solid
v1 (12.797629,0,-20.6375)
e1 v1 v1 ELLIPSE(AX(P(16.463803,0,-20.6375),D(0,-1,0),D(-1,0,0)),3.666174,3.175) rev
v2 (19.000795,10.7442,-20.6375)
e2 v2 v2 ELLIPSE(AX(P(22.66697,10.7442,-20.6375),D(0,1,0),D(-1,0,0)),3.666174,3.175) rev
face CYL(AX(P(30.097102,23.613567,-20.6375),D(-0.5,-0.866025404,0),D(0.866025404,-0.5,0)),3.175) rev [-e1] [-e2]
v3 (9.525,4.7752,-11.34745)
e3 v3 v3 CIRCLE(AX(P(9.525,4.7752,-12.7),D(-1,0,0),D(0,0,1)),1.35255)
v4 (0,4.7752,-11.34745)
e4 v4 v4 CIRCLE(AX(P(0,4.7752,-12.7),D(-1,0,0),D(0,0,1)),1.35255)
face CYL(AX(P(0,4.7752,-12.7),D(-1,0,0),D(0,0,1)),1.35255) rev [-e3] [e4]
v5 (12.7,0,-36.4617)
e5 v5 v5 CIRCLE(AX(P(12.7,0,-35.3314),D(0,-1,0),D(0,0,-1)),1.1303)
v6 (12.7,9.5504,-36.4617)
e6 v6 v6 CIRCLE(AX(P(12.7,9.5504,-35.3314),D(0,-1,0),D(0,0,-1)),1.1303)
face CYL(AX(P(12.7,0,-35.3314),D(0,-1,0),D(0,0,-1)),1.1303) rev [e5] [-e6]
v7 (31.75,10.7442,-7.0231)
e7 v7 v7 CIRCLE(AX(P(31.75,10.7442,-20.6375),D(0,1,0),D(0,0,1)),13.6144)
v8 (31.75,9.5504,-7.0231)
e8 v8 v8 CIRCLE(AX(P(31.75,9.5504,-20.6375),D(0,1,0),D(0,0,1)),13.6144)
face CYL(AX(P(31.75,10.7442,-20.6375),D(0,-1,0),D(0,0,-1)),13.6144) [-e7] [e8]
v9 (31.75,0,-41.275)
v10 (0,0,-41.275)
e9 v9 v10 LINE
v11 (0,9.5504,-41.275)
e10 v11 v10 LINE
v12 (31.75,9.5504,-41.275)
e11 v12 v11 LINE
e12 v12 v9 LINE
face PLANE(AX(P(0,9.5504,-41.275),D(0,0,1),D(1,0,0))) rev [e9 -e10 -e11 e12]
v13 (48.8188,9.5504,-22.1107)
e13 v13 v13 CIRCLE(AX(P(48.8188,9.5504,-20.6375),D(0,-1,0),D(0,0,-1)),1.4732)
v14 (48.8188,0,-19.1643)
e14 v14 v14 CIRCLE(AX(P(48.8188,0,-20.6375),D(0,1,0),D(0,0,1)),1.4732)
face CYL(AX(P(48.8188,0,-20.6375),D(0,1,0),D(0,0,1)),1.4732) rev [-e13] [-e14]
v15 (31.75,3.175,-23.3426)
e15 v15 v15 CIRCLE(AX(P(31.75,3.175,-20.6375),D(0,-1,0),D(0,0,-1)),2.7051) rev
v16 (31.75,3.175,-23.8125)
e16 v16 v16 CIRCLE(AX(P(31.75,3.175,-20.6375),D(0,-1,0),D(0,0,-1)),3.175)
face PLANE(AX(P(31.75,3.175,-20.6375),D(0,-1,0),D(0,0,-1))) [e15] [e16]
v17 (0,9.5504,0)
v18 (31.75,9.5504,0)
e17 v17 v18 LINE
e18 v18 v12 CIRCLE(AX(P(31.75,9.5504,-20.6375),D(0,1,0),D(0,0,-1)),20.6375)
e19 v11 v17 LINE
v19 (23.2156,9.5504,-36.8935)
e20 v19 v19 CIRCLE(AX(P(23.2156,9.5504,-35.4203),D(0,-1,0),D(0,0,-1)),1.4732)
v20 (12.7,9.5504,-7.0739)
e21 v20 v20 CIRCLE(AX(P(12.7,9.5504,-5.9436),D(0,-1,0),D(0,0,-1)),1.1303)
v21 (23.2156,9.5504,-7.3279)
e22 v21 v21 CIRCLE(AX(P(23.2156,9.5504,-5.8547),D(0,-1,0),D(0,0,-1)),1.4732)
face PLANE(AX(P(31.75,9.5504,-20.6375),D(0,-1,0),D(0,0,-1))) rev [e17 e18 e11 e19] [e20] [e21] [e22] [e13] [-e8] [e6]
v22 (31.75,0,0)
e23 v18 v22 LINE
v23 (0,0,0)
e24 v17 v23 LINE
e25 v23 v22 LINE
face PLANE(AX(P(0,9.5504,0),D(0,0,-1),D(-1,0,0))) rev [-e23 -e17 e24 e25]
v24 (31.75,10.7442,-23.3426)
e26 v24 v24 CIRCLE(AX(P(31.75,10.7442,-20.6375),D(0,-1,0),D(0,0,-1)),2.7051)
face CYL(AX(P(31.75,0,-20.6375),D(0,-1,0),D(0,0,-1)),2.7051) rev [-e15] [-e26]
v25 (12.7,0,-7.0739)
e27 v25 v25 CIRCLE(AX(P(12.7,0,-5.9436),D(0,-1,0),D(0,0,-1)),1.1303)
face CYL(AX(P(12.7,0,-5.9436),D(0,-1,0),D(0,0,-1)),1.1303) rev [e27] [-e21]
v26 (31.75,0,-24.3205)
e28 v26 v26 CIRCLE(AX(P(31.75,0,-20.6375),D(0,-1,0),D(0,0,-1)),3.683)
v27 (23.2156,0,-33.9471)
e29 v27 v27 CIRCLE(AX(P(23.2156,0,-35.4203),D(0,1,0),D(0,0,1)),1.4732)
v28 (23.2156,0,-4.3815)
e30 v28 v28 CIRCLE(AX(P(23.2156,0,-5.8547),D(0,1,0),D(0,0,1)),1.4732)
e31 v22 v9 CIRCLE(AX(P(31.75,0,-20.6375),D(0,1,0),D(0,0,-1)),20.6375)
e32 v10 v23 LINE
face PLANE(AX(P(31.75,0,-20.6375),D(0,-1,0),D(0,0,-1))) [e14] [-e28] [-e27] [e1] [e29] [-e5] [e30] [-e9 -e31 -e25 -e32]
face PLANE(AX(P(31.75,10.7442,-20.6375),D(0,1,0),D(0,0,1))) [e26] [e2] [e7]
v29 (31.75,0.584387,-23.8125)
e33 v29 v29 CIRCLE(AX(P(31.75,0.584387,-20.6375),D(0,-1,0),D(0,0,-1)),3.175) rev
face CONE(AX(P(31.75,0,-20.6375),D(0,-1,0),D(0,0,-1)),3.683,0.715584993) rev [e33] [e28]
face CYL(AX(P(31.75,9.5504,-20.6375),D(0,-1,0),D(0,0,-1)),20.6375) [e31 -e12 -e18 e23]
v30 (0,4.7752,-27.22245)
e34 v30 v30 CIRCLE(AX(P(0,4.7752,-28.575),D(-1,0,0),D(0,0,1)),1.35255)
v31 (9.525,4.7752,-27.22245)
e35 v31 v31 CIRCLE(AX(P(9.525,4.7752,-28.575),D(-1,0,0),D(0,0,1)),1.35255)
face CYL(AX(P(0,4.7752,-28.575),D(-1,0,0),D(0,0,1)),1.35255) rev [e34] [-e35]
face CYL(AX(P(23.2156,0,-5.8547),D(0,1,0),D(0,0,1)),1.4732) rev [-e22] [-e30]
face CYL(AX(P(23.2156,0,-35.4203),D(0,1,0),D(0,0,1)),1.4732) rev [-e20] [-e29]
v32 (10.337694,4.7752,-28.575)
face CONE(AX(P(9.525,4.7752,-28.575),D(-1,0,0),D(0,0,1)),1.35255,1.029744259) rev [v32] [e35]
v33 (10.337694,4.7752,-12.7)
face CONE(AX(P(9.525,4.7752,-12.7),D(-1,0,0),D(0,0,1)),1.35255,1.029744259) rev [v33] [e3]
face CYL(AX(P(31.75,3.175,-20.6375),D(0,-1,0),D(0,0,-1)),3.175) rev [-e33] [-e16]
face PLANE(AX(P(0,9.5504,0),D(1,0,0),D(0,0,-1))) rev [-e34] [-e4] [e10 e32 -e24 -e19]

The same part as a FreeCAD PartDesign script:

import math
import FreeCAD as App
import Part
import Sketcher

V = App.Vector
Q = App.Units.Quantity


def add_polygon(sketch, points):
    """Adds a closed chain of lines whose ends are joined by coincident constraints."""
    first, n = sketch.GeometryCount, len(points)
    for a, b in zip(points, points[1:] + points[:1]):
        sketch.addGeometry(Part.LineSegment(App.Vector(*a, 0), App.Vector(*b, 0)), False)
    for i in range(n):
        sketch.addConstraint(Sketcher.Constraint("Coincident", first + i, 2, first + (i + 1) % n, 1))

doc = App.newDocument("Part")
body = doc.addObject("PartDesign::Body", "Body")

# Sketch on XZ plane
sketch1 = body.newObject("Sketcher::SketchObject", "Sketch")
sketch1.AttachmentSupport = (doc.getObject("XZ_Plane"), [""])
sketch1.MapMode = "FlatFace"
sketch1.addGeometry(Part.LineSegment(V(0, 0, 0), V(32, 0, 0)), False)
sketch1.addGeometry(Part.ArcOfCircle(Part.Circle(V(32, -21, 0), V(0, 0, 1), 21), math.radians(-90), math.radians(90)), False)
sketch1.addGeometry(Part.LineSegment(V(32, -41, 0), V(0, -41, 0)), False)
sketch1.addGeometry(Part.LineSegment(V(0, -41, 0), V(0, 0, 0)), False)
sketch1.addConstraint(Sketcher.Constraint("Tangent", 0, 2, 1, 2))
sketch1.addConstraint(Sketcher.Constraint("Tangent", 1, 1, 2, 1))
sketch1.addConstraint(Sketcher.Constraint("Coincident", 2, 2, 3, 1))
sketch1.addConstraint(Sketcher.Constraint("Coincident", 3, 2, 0, 1))
sketch1.addConstraint(Sketcher.Constraint("Horizontal", 0))
sketch1.addConstraint(Sketcher.Constraint("Horizontal", 2))
sketch1.addConstraint(Sketcher.Constraint("Vertical", 3))
sketch1.addConstraint(Sketcher.Constraint("Coincident", 3, 2, -1, 1))
sketch1.addConstraint(Sketcher.Constraint("Radius", 1, Q("0.8125 in")))
sketch1.addConstraint(Sketcher.Constraint("DistanceX", 0, 1, 0, 2, Q("1.25 in")))
pad1 = body.newObject("PartDesign::Pad", "Pad")
pad1.Profile = sketch1
pad1.Length = Q("0.376 in")
pad1.Reversed = True

# Sketch on XZ plane
sketch2 = body.newObject("Sketcher::SketchObject", "Sketch001")
sketch2.AttachmentSupport = (doc.getObject("XZ_Plane"), [""])
sketch2.MapMode = "FlatFace"
sketch2.AttachmentOffset = App.Placement(V(0, 0, -0.376 * 25.4), App.Rotation())
sketch2.addGeometry(Part.Circle(V(32, -21, 0), V(0, 0, 1), 14), False)
sketch2.addConstraint(Sketcher.Constraint("Diameter", 0, Q("1.072 in")))
sketch2.addConstraint(Sketcher.Constraint("DistanceX", -1, 1, 0, 3, Q("1.25 in")))
sketch2.addConstraint(Sketcher.Constraint("DistanceY", 0, 3, -1, 1, Q("0.8125 in")))
pad2 = body.newObject("PartDesign::Pad", "Pad001")
pad2.Profile = sketch2
pad2.Length = Q("0.047 in")
pad2.Reversed = True

# Sketch on XZ plane
sketch3 = body.newObject("Sketcher::SketchObject", "Sketch002")
sketch3.AttachmentSupport = (doc.getObject("XZ_Plane"), [""])
sketch3.MapMode = "FlatFace"
sketch3.AttachmentOffset = App.Placement(V(0, 0, -0.423 * 25.4), App.Rotation())
sketch3.addGeometry(Part.Circle(V(23.2, -35.4, 0), V(0, 0, 1), 1.5), False)
sketch3.addGeometry(Part.Circle(V(48.8, -20.6, 0), V(0, 0, 1), 1.5), False)
sketch3.addGeometry(Part.Circle(V(23.2, -5.9, 0), V(0, 0, 1), 1.5), False)
sketch3.addConstraint(Sketcher.Constraint("Equal", 0, 1))
sketch3.addConstraint(Sketcher.Constraint("Equal", 1, 2))
sketch3.addConstraint(Sketcher.Constraint("Vertical", 0, 3, 2, 3))
sketch3.addConstraint(Sketcher.Constraint("Diameter", 0, Q("0.116 in")))
sketch3.addConstraint(Sketcher.Constraint("DistanceX", -1, 1, 0, 3, Q("0.914 in")))
sketch3.addConstraint(Sketcher.Constraint("DistanceX", -1, 1, 1, 3, Q("1.922 in")))
sketch3.addConstraint(Sketcher.Constraint("DistanceY", 1, 3, -1, 1, Q("0.8125 in")))
sketch3.addConstraint(Sketcher.Constraint("DistanceY", 0, 3, 1, 3, Q("0.582 in")))
sketch3.addConstraint(Sketcher.Constraint("DistanceY", 1, 3, 2, 3, Q("0.582 in")))
pocket1 = body.newObject("PartDesign::Pocket", "Pocket")
pocket1.Profile = sketch3
pocket1.Type = "ThroughAll"
pocket1.Reversed = True

# Sketch on XZ plane
sketch4 = body.newObject("Sketcher::SketchObject", "Sketch003")
sketch4.AttachmentSupport = (doc.getObject("XZ_Plane"), [""])
sketch4.MapMode = "FlatFace"
sketch4.addGeometry(Part.Circle(V(12.7, -5.9, 0), V(0, 0, 1), 1.1), False)
sketch4.addGeometry(Part.Circle(V(12.7, -35.3, 0), V(0, 0, 1), 1.1), False)
sketch4.addConstraint(Sketcher.Constraint("Equal", 0, 1))
sketch4.addConstraint(Sketcher.Constraint("Vertical", 0, 3, 1, 3))
sketch4.addConstraint(Sketcher.Constraint("Diameter", 0, Q("0.089 in")))
sketch4.addConstraint(Sketcher.Constraint("DistanceX", -1, 1, 0, 3, Q("0.5 in")))
sketch4.addConstraint(Sketcher.Constraint("DistanceY", 0, 3, -1, 1, Q("0.234 in")))
sketch4.addConstraint(Sketcher.Constraint("DistanceY", 1, 3, -1, 1, Q("1.391 in")))
doc.recompute()
hole = body.newObject("PartDesign::Hole", "Hole")
hole.Profile = sketch4
hole.ThreadType = "None"
hole.Diameter = Q("0.089 in")
hole.DepthType = "ThroughAll"

# Sketch on XZ plane
sketch5 = body.newObject("Sketcher::SketchObject", "Sketch004")
sketch5.AttachmentSupport = (doc.getObject("XZ_Plane"), [""])
sketch5.MapMode = "FlatFace"
sketch5.addGeometry(Part.Circle(V(31.8, -20.6, 0), V(0, 0, 1), 2.7), False)
sketch5.addConstraint(Sketcher.Constraint("Diameter", 0, Q("0.213 in")))
sketch5.addConstraint(Sketcher.Constraint("DistanceX", -1, 1, 0, 3, Q("1.25 in")))
sketch5.addConstraint(Sketcher.Constraint("DistanceY", 0, 3, -1, 1, Q("0.8125 in")))
doc.recompute()
hole2 = body.newObject("PartDesign::Hole", "Hole001")
hole2.Profile = sketch5
hole2.ThreadType = "None"
hole2.Diameter = Q("0.213 in")
hole2.DepthType = "ThroughAll"
hole2.HoleCutType = "Countersink"
hole2.HoleCutDiameter = Q("0.29 in")
hole2.HoleCutCountersinkAngle = 82

# Sketch on an angled plane
sketch6 = body.newObject("Sketcher::SketchObject", "Sketch005")
sketch6.Placement = App.Placement(V(0, 0, 0), App.Rotation(V(0, 0, 1), V(0.866025404, -0.5, 0), V(0.5, 0.866025404, 0), "ZXY"))
sketch6.addGeometry(Part.Circle(V(-20.6, 14.3, 0), V(0, 0, 1), 3.2), False)
sketch6.addConstraint(Sketcher.Constraint("Diameter", 0, Q("0.25 in")))
sketch6.addConstraint(Sketcher.Constraint("DistanceX", 0, 3, -1, 1, Q("0.8125 in")))
sketch6.addConstraint(Sketcher.Constraint("DistanceY", -1, 1, 0, 3, Q("14.258072 mm")))
pocket2 = body.newObject("PartDesign::Pocket", "Pocket001")
pocket2.Profile = sketch6
pocket2.Type = "ThroughAll"
pocket2.Reversed = True

# Sketch on XZ plane
sketch7 = body.newObject("Sketcher::SketchObject", "Sketch006")
sketch7.AttachmentSupport = (doc.getObject("XZ_Plane"), [""])
sketch7.MapMode = "FlatFace"
sketch7.addGeometry(Part.Circle(V(31.8, -20.6, 0), V(0, 0, 1), 3.2), False)
sketch7.addConstraint(Sketcher.Constraint("Diameter", 0, Q("0.25 in")))
sketch7.addConstraint(Sketcher.Constraint("DistanceX", -1, 1, 0, 3, Q("1.25 in")))
sketch7.addConstraint(Sketcher.Constraint("DistanceY", 0, 3, -1, 1, Q("0.8125 in")))
pocket3 = body.newObject("PartDesign::Pocket", "Pocket002")
pocket3.Profile = sketch7
pocket3.Length = Q("0.125 in")

# Sketch on XZ plane
sketch8 = body.newObject("Sketcher::SketchObject", "Sketch007")
sketch8.AttachmentSupport = (doc.getObject("XZ_Plane"), [""])
sketch8.MapMode = "FlatFace"
sketch8.AttachmentOffset = App.Placement(V(0, 0, -0.188 * 25.4), App.Rotation())
add_polygon(sketch8, [(10.3, -28.6), (0, -28.6), (0, -27.2), (9.5, -27.2)])  # lines 0-3
sketch8.addGeometry(Part.LineSegment(V(0, -28.6, 0), V(10.3, -28.6, 0)), True)  # axis
sketch8.addConstraint(Sketcher.Constraint("Horizontal", 0))
sketch8.addConstraint(Sketcher.Constraint("Vertical", 1))
sketch8.addConstraint(Sketcher.Constraint("Horizontal", 2))
sketch8.addConstraint(Sketcher.Constraint("Horizontal", 4))
sketch8.addConstraint(Sketcher.Constraint("Coincident", 4, 1, 0, 2))
sketch8.addConstraint(Sketcher.Constraint("PointOnObject", 0, 2, -2))
sketch8.addConstraint(Sketcher.Constraint("Equal", 0, 4))
sketch8.addConstraint(Sketcher.Constraint("Angle", 3, Q("-59 deg")))
sketch8.addConstraint(Sketcher.Constraint("DistanceX", 2, 1, 2, 2, Q("0.375 in")))
sketch8.addConstraint(Sketcher.Constraint("DistanceY", 0, 2, -1, 1, Q("1.125 in")))
sketch8.addConstraint(Sketcher.Constraint("DistanceY", 1, 1, 1, 2, Q("1.35255 mm")))
groove = body.newObject("PartDesign::Groove", "Groove")
groove.Profile = sketch8
groove.ReferenceAxis = (sketch8, ["Axis0"])
groove.Angle = 360
doc.recompute()

linearpattern = body.newObject("PartDesign::LinearPattern", "LinearPattern")
linearpattern.Originals = [groove]
linearpattern.Direction = (doc.getObject("Z_Axis"), [""])
linearpattern.Mode = "offset"
linearpattern.Offset = Q("0.625 in")
linearpattern.Occurrences = 2
body.Tip = linearpattern

doc.recompute()
